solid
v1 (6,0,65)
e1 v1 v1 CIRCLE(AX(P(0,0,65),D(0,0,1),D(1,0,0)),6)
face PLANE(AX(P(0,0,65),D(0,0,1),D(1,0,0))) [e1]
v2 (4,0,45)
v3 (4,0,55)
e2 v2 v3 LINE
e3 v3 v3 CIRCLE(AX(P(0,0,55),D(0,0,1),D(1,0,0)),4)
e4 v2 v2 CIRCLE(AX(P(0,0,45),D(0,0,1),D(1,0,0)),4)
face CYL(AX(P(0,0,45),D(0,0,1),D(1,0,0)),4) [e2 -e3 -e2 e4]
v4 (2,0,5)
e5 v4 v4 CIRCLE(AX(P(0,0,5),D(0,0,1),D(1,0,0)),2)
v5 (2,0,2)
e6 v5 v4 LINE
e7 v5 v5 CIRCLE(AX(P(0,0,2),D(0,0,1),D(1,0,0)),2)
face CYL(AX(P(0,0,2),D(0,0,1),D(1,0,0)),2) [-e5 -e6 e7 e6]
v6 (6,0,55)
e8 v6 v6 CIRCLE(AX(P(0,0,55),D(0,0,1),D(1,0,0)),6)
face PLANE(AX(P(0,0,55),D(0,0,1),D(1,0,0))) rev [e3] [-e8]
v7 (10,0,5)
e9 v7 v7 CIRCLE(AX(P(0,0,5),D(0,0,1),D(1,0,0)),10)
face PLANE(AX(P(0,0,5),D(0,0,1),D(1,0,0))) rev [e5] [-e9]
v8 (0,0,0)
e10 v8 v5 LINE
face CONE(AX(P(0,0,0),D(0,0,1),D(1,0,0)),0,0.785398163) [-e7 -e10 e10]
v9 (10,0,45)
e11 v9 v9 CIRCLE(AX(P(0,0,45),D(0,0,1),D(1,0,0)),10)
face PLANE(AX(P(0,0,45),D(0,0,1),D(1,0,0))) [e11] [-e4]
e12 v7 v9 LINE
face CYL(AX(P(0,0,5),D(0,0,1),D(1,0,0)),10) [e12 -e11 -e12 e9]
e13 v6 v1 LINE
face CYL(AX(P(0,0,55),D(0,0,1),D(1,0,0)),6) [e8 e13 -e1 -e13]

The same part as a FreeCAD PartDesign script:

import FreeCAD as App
import Part
import Sketcher
Q = App.Units.Quantity

doc = App.newDocument("Part")
body = doc.addObject("PartDesign::Body", "Body")

# Sketch on XZ plane
sketch1 = doc.addObject("Sketcher::SketchObject", "Sketch")
body.addObject(sketch1)
sketch1.AttachmentSupport = (doc.XZ_Plane, [""])
sketch1.MapMode = "FlatFace"
sketch1.addGeometry(Part.LineSegment(App.Vector(0, 0, 0), App.Vector(2, 2, 0)), False)
sketch1.addGeometry(Part.LineSegment(App.Vector(2, 2, 0), App.Vector(2, 5, 0)), False)
sketch1.addGeometry(Part.LineSegment(App.Vector(2, 5, 0), App.Vector(10, 5, 0)), False)
sketch1.addGeometry(Part.LineSegment(App.Vector(10, 5, 0), App.Vector(10, 45, 0)), False)
sketch1.addGeometry(Part.LineSegment(App.Vector(10, 45, 0), App.Vector(4, 45, 0)), False)
sketch1.addGeometry(Part.LineSegment(App.Vector(4, 45, 0), App.Vector(4, 55, 0)), False)
sketch1.addGeometry(Part.LineSegment(App.Vector(4, 55, 0), App.Vector(6, 55, 0)), False)
sketch1.addGeometry(Part.LineSegment(App.Vector(6, 55, 0), App.Vector(6, 65, 0)), False)
sketch1.addGeometry(Part.LineSegment(App.Vector(6, 65, 0), App.Vector(0, 65, 0)), False)
sketch1.addGeometry(Part.LineSegment(App.Vector(0, 65, 0), App.Vector(0, 0, 0)), False)
sketch1.addConstraint(Sketcher.Constraint("Coincident", 0, 2, 1, 1))
sketch1.addConstraint(Sketcher.Constraint("Coincident", 1, 2, 2, 1))
sketch1.addConstraint(Sketcher.Constraint("Coincident", 2, 2, 3, 1))
sketch1.addConstraint(Sketcher.Constraint("Coincident", 3, 2, 4, 1))
sketch1.addConstraint(Sketcher.Constraint("Coincident", 4, 2, 5, 1))
sketch1.addConstraint(Sketcher.Constraint("Coincident", 5, 2, 6, 1))
sketch1.addConstraint(Sketcher.Constraint("Coincident", 6, 2, 7, 1))
sketch1.addConstraint(Sketcher.Constraint("Coincident", 7, 2, 8, 1))
sketch1.addConstraint(Sketcher.Constraint("Coincident", 8, 2, 9, 1))
sketch1.addConstraint(Sketcher.Constraint("Coincident", 9, 2, 0, 1))
sketch1.addConstraint(Sketcher.Constraint("Vertical", 1))
sketch1.addConstraint(Sketcher.Constraint("Horizontal", 2))
sketch1.addConstraint(Sketcher.Constraint("Vertical", 3))
sketch1.addConstraint(Sketcher.Constraint("Horizontal", 4))
sketch1.addConstraint(Sketcher.Constraint("Vertical", 5))
sketch1.addConstraint(Sketcher.Constraint("Horizontal", 6))
sketch1.addConstraint(Sketcher.Constraint("Vertical", 7))
sketch1.addConstraint(Sketcher.Constraint("Horizontal", 8))
sketch1.addConstraint(Sketcher.Constraint("Vertical", 9))
sketch1.addConstraint(Sketcher.Constraint("Coincident", 9, 2, -1, 1))
sketch1.addConstraint(Sketcher.Constraint("Equal", 4, 8))
sketch1.addConstraint(Sketcher.Constraint("Equal", 5, 7))
sketch1.addConstraint(Sketcher.Constraint("DistanceX", 2, 1, 2, 2, Q("8 mm")))
sketch1.addConstraint(Sketcher.Constraint("DistanceX", 4, 2, 4, 1, Q("6 mm")))
sketch1.addConstraint(Sketcher.Constraint("DistanceX", 6, 1, 6, 2, Q("2 mm")))
sketch1.addConstraint(Sketcher.Constraint("DistanceY", 1, 1, 1, 2, Q("3 mm")))
sketch1.addConstraint(Sketcher.Constraint("DistanceY", 3, 1, 3, 2, Q("40 mm")))
sketch1.addConstraint(Sketcher.Constraint("DistanceY", 5, 1, 5, 2, Q("10 mm")))
sketch1.addConstraint(Sketcher.Constraint("DistanceY", 9, 2, 9, 1, Q("65 mm")))
revolution = doc.addObject("PartDesign::Revolution", "Revolution")
body.addObject(revolution)
revolution.Profile = sketch1
revolution.ReferenceAxis = (sketch1, ["V_Axis"])
revolution.Angle = 360

doc.recompute()
